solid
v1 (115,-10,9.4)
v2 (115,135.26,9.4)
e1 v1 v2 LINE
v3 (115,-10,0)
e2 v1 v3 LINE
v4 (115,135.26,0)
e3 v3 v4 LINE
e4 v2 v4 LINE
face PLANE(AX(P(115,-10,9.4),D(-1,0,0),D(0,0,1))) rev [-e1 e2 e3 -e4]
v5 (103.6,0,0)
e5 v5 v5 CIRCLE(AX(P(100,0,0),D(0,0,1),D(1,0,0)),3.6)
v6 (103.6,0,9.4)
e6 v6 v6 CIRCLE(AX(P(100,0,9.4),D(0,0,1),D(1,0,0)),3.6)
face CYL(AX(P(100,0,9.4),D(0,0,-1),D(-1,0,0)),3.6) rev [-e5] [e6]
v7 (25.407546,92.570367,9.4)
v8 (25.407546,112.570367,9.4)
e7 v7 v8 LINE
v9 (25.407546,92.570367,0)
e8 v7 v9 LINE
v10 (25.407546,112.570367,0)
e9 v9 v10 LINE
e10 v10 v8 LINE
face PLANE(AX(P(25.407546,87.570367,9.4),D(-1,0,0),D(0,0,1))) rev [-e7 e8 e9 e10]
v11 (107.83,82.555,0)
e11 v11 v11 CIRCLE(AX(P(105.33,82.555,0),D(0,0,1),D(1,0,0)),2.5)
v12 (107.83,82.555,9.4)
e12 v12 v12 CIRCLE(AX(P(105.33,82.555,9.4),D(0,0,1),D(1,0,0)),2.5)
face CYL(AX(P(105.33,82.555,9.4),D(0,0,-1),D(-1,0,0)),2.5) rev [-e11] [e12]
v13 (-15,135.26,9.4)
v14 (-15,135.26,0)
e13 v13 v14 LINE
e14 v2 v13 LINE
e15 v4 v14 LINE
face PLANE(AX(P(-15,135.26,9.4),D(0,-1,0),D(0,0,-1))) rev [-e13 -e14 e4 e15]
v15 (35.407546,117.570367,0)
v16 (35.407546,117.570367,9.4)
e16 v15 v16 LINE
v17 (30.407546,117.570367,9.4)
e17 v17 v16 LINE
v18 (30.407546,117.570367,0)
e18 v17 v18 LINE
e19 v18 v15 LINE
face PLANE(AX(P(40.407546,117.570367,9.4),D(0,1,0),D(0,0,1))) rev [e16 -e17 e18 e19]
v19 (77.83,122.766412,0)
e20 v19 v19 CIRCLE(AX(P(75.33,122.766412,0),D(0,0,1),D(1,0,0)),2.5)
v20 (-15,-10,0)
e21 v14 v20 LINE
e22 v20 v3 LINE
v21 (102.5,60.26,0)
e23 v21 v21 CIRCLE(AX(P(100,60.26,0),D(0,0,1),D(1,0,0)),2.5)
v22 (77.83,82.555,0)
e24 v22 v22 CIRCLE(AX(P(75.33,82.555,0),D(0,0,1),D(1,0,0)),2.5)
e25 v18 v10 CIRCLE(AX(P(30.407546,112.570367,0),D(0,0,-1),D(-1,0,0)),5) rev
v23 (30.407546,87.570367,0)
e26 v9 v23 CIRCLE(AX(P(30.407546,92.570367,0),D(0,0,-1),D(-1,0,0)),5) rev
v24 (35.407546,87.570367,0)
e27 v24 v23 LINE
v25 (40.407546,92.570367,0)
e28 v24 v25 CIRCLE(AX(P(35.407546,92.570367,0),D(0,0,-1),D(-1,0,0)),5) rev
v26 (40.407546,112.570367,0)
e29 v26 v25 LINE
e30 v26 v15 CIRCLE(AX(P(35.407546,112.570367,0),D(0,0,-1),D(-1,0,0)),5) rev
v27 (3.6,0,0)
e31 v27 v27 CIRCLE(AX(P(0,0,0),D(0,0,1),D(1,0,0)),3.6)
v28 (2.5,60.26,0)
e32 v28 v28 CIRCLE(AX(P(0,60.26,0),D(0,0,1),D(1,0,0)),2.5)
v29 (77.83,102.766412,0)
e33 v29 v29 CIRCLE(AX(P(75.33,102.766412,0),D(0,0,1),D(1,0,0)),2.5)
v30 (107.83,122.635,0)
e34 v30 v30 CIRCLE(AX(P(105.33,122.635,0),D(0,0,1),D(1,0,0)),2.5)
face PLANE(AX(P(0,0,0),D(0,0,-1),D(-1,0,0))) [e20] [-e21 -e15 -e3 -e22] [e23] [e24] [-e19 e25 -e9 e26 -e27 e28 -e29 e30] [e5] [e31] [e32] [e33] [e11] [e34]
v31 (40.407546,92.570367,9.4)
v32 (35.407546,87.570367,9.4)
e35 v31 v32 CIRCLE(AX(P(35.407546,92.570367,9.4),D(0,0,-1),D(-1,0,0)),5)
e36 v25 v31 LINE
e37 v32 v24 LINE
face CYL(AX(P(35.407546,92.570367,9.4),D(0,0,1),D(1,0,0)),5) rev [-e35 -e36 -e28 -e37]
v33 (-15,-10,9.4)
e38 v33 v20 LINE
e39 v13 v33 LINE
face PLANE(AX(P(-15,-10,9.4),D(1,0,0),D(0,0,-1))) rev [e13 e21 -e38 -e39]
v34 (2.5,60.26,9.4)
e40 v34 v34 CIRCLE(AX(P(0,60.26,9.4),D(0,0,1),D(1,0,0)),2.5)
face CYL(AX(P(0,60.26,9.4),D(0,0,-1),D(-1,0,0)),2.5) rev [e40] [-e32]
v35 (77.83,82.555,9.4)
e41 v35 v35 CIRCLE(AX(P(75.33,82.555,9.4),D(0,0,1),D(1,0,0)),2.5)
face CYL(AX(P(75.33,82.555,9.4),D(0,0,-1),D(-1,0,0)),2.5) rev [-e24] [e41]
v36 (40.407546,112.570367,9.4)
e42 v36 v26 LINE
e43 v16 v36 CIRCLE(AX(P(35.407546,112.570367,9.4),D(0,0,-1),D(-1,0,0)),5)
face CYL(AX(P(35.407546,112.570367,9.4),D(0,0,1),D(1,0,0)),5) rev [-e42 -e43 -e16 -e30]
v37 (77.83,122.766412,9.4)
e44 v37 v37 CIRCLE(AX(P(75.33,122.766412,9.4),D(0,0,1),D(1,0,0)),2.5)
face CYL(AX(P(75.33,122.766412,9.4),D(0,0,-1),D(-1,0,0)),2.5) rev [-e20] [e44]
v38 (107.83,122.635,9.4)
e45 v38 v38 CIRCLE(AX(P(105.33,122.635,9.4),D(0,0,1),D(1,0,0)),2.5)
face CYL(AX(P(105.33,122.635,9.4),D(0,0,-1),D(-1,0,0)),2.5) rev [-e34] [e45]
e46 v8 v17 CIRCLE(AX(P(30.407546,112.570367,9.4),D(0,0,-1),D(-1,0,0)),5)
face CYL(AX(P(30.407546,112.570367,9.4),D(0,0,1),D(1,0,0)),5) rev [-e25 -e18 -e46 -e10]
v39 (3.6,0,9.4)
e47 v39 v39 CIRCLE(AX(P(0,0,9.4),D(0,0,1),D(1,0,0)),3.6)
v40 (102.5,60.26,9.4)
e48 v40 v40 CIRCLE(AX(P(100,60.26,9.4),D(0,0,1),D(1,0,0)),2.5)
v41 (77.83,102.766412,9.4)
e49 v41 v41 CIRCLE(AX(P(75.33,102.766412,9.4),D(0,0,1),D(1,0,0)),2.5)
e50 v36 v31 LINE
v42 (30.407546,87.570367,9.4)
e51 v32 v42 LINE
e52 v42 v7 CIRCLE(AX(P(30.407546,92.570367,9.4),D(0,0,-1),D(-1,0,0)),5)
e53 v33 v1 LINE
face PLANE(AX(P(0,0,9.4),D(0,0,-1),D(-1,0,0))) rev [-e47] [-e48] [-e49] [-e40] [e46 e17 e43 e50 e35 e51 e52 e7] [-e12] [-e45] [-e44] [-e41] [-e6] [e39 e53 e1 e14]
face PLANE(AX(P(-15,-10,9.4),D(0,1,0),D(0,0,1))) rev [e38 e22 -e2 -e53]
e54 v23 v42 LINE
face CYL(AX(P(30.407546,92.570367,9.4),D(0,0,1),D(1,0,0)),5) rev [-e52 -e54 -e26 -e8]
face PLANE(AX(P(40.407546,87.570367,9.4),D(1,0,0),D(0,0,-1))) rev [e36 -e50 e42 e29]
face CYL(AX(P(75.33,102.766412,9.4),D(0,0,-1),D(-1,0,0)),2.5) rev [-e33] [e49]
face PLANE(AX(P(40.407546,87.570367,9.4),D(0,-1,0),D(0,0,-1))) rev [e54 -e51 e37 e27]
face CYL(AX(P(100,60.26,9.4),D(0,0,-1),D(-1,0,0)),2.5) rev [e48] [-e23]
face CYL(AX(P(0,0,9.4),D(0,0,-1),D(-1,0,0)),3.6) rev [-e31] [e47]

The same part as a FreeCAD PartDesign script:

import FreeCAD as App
import Part
import Sketcher

V = App.Vector
Q = App.Units.Quantity


def edges_at(feature, points):
    """Names of the edges that pass closest to the given points."""
    edges = feature.Shape.Edges
    near = lambda p: min(range(len(edges)), key=lambda i: edges[i].distToShape(Part.Vertex(*p))[0])
    return sorted({f"Edge{near(p) + 1}" for p in points})

doc = App.newDocument("Part")
body = doc.addObject("PartDesign::Body", "Body")

# Sketch on XY plane
sketch1 = doc.addObject("Sketcher::SketchObject", "Sketch")
body.addObject(sketch1)
sketch1.AttachmentSupport = (doc.XY_Plane, [""])
sketch1.MapMode = "FlatFace"
sketch1.addGeometry(Part.LineSegment(V(-15, 135.26, 0), V(-15, -10, 0)), False)
sketch1.addGeometry(Part.LineSegment(V(-15, -10, 0), V(115, -10, 0)), False)
sketch1.addGeometry(Part.LineSegment(V(115, -10, 0), V(115, 135.26, 0)), False)
sketch1.addGeometry(Part.LineSegment(V(115, 135.26, 0), V(-15, 135.26, 0)), False)
sketch1.addGeometry(Part.Circle(V(0, 0, 0), V(0, 0, 1), 3.6), False)
sketch1.addGeometry(Part.Circle(V(0, 60.26, 0), V(0, 0, 1), 2.5), False)
sketch1.addGeometry(Part.Circle(V(100, 0, 0), V(0, 0, 1), 3.6), False)
sketch1.addGeometry(Part.Circle(V(100, 60.26, 0), V(0, 0, 1), 2.5), False)
sketch1.addGeometry(Part.Circle(V(75.33, 82.555, 0), V(0, 0, 1), 2.5), False)
sketch1.addGeometry(Part.Circle(V(105.33, 82.555, 0), V(0, 0, 1), 2.5), False)
sketch1.addGeometry(Part.Circle(V(75.33, 102.766412, 0), V(0, 0, 1), 2.5), False)
sketch1.addGeometry(Part.Circle(V(75.33, 122.766412, 0), V(0, 0, 1), 2.5), False)
sketch1.addGeometry(Part.Circle(V(105.33, 122.635, 0), V(0, 0, 1), 2.5), False)
sketch1.addConstraint(Sketcher.Constraint("Coincident", 0, 2, 1, 1))
sketch1.addConstraint(Sketcher.Constraint("Coincident", 1, 2, 2, 1))
sketch1.addConstraint(Sketcher.Constraint("Coincident", 2, 2, 3, 1))
sketch1.addConstraint(Sketcher.Constraint("Coincident", 3, 2, 0, 1))
sketch1.addConstraint(Sketcher.Constraint("Vertical", 0))
sketch1.addConstraint(Sketcher.Constraint("Horizontal", 1))
sketch1.addConstraint(Sketcher.Constraint("Vertical", 2))
sketch1.addConstraint(Sketcher.Constraint("Horizontal", 3))
sketch1.addConstraint(Sketcher.Constraint("Coincident", 4, 3, -1, 1))
sketch1.addConstraint(Sketcher.Constraint("Equal", 4, 6))
sketch1.addConstraint(Sketcher.Constraint("Equal", 5, 7))
sketch1.addConstraint(Sketcher.Constraint("Equal", 7, 8))
sketch1.addConstraint(Sketcher.Constraint("Equal", 8, 9))
sketch1.addConstraint(Sketcher.Constraint("Equal", 9, 10))
sketch1.addConstraint(Sketcher.Constraint("Equal", 10, 11))
sketch1.addConstraint(Sketcher.Constraint("Equal", 11, 12))
sketch1.addConstraint(Sketcher.Constraint("PointOnObject", 5, 3, -2))
sketch1.addConstraint(Sketcher.Constraint("PointOnObject", 6, 3, -1))
sketch1.addConstraint(Sketcher.Constraint("Horizontal", 5, 3, 7, 3))
sketch1.addConstraint(Sketcher.Constraint("Horizontal", 8, 3, 9, 3))
sketch1.addConstraint(Sketcher.Constraint("Vertical", 6, 3, 7, 3))
sketch1.addConstraint(Sketcher.Constraint("Vertical", 8, 3, 10, 3))
sketch1.addConstraint(Sketcher.Constraint("Vertical", 10, 3, 11, 3))
sketch1.addConstraint(Sketcher.Constraint("Vertical", 9, 3, 12, 3))
sketch1.addConstraint(Sketcher.Constraint("Diameter", 5, Q("5 mm")))
sketch1.addConstraint(Sketcher.Constraint("Diameter", 4, Q("7.2 mm")))
sketch1.addConstraint(Sketcher.Constraint("DistanceX", 1, 1, 1, 2, Q("130 mm")))
sketch1.addConstraint(Sketcher.Constraint("DistanceX", -1, 1, 6, 3, Q("100 mm")))
sketch1.addConstraint(Sketcher.Constraint("DistanceX", 0, 2, -1, 1, Q("15 mm")))
sketch1.addConstraint(Sketcher.Constraint("DistanceY", 0, 2, -1, 1, Q("10 mm")))
sketch1.addConstraint(Sketcher.Constraint("DistanceX", 8, 3, 9, 3, Q("30 mm")))
sketch1.addConstraint(Sketcher.Constraint("DistanceY", 10, 3, 11, 3, Q("20 mm")))
sketch1.addConstraint(Sketcher.Constraint("DistanceY", 5, 3, 3, 2, Q("75 mm")))
sketch1.addConstraint(Sketcher.Constraint("DistanceY", 0, 2, 0, 1, Q("145.26 mm")))
sketch1.addConstraint(Sketcher.Constraint("DistanceX", -1, 1, 8, 3, Q("75.33 mm")))
sketch1.addConstraint(Sketcher.Constraint("DistanceY", 9, 3, 12, 3, Q("40.08 mm")))
sketch1.addConstraint(Sketcher.Constraint("DistanceY", -1, 1, 8, 3, Q("82.555 mm")))
sketch1.addConstraint(Sketcher.Constraint("DistanceY", -1, 1, 10, 3, Q("102.766412 mm")))
pad1 = doc.addObject("PartDesign::Pad", "Pad")
body.addObject(pad1)
pad1.Profile = sketch1
pad1.Length = 9.4

# Sketch on XY plane
sketch2 = doc.addObject("Sketcher::SketchObject", "Sketch001")
body.addObject(sketch2)
sketch2.AttachmentSupport = (doc.XY_Plane, [""])
sketch2.MapMode = "FlatFace"
sketch2.addGeometry(Part.LineSegment(V(40.407546, 117.570367, 0), V(40.407546, 87.570367, 0)), False)
sketch2.addGeometry(Part.LineSegment(V(40.407546, 87.570367, 0), V(25.407546, 87.570367, 0)), False)
sketch2.addGeometry(Part.LineSegment(V(25.407546, 87.570367, 0), V(25.407546, 117.570367, 0)), False)
sketch2.addGeometry(Part.LineSegment(V(25.407546, 117.570367, 0), V(40.407546, 117.570367, 0)), False)
sketch2.addConstraint(Sketcher.Constraint("Coincident", 0, 2, 1, 1))
sketch2.addConstraint(Sketcher.Constraint("Coincident", 1, 2, 2, 1))
sketch2.addConstraint(Sketcher.Constraint("Coincident", 2, 2, 3, 1))
sketch2.addConstraint(Sketcher.Constraint("Coincident", 3, 2, 0, 1))
sketch2.addConstraint(Sketcher.Constraint("Vertical", 0))
sketch2.addConstraint(Sketcher.Constraint("Horizontal", 1))
sketch2.addConstraint(Sketcher.Constraint("Vertical", 2))
sketch2.addConstraint(Sketcher.Constraint("Horizontal", 3))
sketch2.addConstraint(Sketcher.Constraint("DistanceX", 1, 2, 1, 1, Q("15 mm")))
sketch2.addConstraint(Sketcher.Constraint("DistanceY", 0, 2, 0, 1, Q("30 mm")))
sketch2.addConstraint(Sketcher.Constraint("DistanceX", -1, 1, 0, 2, Q("40.407546 mm")))
sketch2.addConstraint(Sketcher.Constraint("DistanceY", -1, 1, 0, 2, Q("87.570367 mm")))
pocket1 = doc.addObject("PartDesign::Pocket", "Pocket")
body.addObject(pocket1)
pocket1.Profile = sketch2
pocket1.Type = "ThroughAll"
pocket1.Reversed = True
doc.recompute()

fillet = doc.addObject("PartDesign::Fillet", "Fillet")
body.addObject(fillet)
fillet.Base = (pocket1, edges_at(pocket1, [
    (40.408, 87.57, 4.7),
    (40.408, 117.57, 4.7),
    (25.408, 117.57, 4.7),
    (25.408, 87.57, 4.7),
]))
fillet.Radius = 5

doc.recompute()
